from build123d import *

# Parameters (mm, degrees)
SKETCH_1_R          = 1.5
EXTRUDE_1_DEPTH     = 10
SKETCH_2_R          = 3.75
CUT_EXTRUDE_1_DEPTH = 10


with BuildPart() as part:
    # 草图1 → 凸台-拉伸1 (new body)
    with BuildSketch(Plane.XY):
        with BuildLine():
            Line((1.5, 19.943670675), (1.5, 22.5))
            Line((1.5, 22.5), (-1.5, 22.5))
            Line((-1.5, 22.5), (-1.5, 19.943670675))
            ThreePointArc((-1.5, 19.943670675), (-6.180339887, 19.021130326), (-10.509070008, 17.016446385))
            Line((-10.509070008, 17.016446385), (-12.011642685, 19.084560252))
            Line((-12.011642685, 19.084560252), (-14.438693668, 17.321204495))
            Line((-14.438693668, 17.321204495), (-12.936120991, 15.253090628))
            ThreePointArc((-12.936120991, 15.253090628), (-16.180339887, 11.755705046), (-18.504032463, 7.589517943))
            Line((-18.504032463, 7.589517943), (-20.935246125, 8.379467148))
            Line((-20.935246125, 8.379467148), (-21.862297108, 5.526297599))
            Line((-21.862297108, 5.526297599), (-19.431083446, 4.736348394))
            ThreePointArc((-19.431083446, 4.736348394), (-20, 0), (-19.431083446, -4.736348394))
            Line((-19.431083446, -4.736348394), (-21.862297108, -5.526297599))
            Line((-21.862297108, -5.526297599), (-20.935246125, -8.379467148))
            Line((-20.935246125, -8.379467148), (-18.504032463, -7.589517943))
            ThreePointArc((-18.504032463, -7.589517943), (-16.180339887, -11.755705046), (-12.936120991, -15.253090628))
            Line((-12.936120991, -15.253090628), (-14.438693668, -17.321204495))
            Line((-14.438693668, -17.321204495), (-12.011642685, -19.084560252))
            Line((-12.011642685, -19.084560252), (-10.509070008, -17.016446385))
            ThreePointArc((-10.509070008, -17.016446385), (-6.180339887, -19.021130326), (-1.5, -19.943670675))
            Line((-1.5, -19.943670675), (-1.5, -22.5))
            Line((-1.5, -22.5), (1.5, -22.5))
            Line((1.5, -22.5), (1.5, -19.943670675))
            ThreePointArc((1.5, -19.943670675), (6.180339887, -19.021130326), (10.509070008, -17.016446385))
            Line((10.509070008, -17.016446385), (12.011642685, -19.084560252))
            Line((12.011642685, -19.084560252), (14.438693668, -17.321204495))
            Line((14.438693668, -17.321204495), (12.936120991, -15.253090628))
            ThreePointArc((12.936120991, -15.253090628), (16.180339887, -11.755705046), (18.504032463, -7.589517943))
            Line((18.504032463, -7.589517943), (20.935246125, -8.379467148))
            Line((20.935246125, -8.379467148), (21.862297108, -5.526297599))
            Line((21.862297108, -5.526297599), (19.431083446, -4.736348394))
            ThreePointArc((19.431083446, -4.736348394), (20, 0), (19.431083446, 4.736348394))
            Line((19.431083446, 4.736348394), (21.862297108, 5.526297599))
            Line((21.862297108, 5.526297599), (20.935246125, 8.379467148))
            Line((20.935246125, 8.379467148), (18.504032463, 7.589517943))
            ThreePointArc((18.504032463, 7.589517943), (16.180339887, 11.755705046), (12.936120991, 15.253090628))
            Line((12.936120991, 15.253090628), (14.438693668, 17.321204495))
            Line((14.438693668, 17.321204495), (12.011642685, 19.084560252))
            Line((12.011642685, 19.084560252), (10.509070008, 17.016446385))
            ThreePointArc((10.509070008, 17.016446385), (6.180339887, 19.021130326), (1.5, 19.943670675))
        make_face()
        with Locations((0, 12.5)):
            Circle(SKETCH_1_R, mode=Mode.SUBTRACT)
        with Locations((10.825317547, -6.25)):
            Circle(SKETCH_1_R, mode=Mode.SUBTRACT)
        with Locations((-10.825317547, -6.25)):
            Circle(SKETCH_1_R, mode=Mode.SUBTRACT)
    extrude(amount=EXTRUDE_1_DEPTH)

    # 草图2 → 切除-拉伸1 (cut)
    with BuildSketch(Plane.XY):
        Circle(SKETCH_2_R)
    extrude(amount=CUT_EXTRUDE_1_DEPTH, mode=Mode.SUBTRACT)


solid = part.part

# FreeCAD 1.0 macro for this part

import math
import FreeCAD as App
import Part
import Sketcher

V = App.Vector
Q = App.Units.Quantity

doc = App.newDocument("Part")
body = doc.addObject("PartDesign::Body", "Body")

sketch1 = body.newObject("Sketcher::SketchObject", "Sketch")
sketch1.AttachmentSupport = (doc.getObject("XY_Plane"), [""])
sketch1.MapMode = "FlatFace"
sketch1.addGeometry([
    Part.LineSegment(V(1.5, 19.943671, 0), V(1.5, 22.5, 0)),
    Part.LineSegment(V(1.5, 22.5, 0), V(-1.5, 22.5, 0)),
    Part.LineSegment(V(-1.5, 22.5, 0), V(-1.5, 19.943671, 0)),
    Part.ArcOfCircle(Part.Circle(V(0, 0, 0), V(0, 0, 1), 20), math.radians(94.301222), math.radians(121.698778)),
    Part.LineSegment(V(-10.50907, 17.016446, 0), V(-12.011643, 19.08456, 0)),
    Part.LineSegment(V(-12.011643, 19.08456, 0), V(-14.438694, 17.321204, 0)),
    Part.LineSegment(V(-14.438694, 17.321204, 0), V(-12.936121, 15.253091, 0)),
    Part.ArcOfCircle(Part.Circle(V(0, 0, 0), V(0, 0, 1), 20), math.radians(130.301222), math.radians(157.698778)),
    Part.LineSegment(V(-18.504032, 7.589518, 0), V(-20.935246, 8.379467, 0)),
    Part.LineSegment(V(-20.935246, 8.379467, 0), V(-21.862297, 5.526298, 0)),
    Part.LineSegment(V(-21.862297, 5.526298, 0), V(-19.431083, 4.736348, 0)),
    Part.ArcOfCircle(Part.Circle(V(0, 0, 0), V(0, 0, 1), 20), math.radians(166.301222), math.radians(193.698778)),
    Part.LineSegment(V(-19.431083, -4.736348, 0), V(-21.862297, -5.526298, 0)),
    Part.LineSegment(V(-21.862297, -5.526298, 0), V(-20.935246, -8.379467, 0)),
    Part.LineSegment(V(-20.935246, -8.379467, 0), V(-18.504032, -7.589518, 0)),
    Part.ArcOfCircle(Part.Circle(V(0, 0, 0), V(0, 0, 1), 20), math.radians(-157.698778), math.radians(-130.301222)),
    Part.LineSegment(V(-12.936121, -15.253091, 0), V(-14.438694, -17.321204, 0)),
    Part.LineSegment(V(-14.438694, -17.321204, 0), V(-12.011643, -19.08456, 0)),
    Part.LineSegment(V(-12.011643, -19.08456, 0), V(-10.50907, -17.016446, 0)),
    Part.ArcOfCircle(Part.Circle(V(0, 0, 0), V(0, 0, 1), 20), math.radians(-121.698778), math.radians(-94.301222)),
    Part.LineSegment(V(-1.5, -19.943671, 0), V(-1.5, -22.5, 0)),
    Part.LineSegment(V(-1.5, -22.5, 0), V(1.5, -22.5, 0)),
    Part.LineSegment(V(1.5, -22.5, 0), V(1.5, -19.943671, 0)),
    Part.ArcOfCircle(Part.Circle(V(0, 0, 0), V(0, 0, 1), 20), math.radians(-85.698778), math.radians(-58.301222)),
    Part.LineSegment(V(10.50907, -17.016446, 0), V(12.011643, -19.08456, 0)),
    Part.LineSegment(V(12.011643, -19.08456, 0), V(14.438694, -17.321204, 0)),
    Part.LineSegment(V(14.438694, -17.321204, 0), V(12.936121, -15.253091, 0)),
    Part.ArcOfCircle(Part.Circle(V(0, 0, 0), V(0, 0, 1), 20), math.radians(-49.698778), math.radians(-22.301222)),
    Part.LineSegment(V(18.504032, -7.589518, 0), V(20.935246, -8.379467, 0)),
    Part.LineSegment(V(20.935246, -8.379467, 0), V(21.862297, -5.526298, 0)),
    Part.LineSegment(V(21.862297, -5.526298, 0), V(19.431083, -4.736348, 0)),
    Part.ArcOfCircle(Part.Circle(V(0, 0, 0), V(0, 0, 1), 20), math.radians(-13.698778), math.radians(13.698778)),
    Part.LineSegment(V(19.431083, 4.736348, 0), V(21.862297, 5.526298, 0)),
    Part.LineSegment(V(21.862297, 5.526298, 0), V(20.935246, 8.379467, 0)),
    Part.LineSegment(V(20.935246, 8.379467, 0), V(18.504032, 7.589518, 0)),
    Part.ArcOfCircle(Part.Circle(V(0, 0, 0), V(0, 0, 1), 20), math.radians(22.301222), math.radians(49.698778)),
    Part.LineSegment(V(12.936121, 15.253091, 0), V(14.438694, 17.321204, 0)),
    Part.LineSegment(V(14.438694, 17.321204, 0), V(12.011643, 19.08456, 0)),
    Part.LineSegment(V(12.011643, 19.08456, 0), V(10.50907, 17.016446, 0)),
    Part.ArcOfCircle(Part.Circle(V(0, 0, 0), V(0, 0, 1), 20), math.radians(58.301222), math.radians(85.698778)),
    Part.Circle(V(-10.825318, -6.25, 0), V(0, 0, 1), 1.5),
    Part.Circle(V(10.825318, -6.25, 0), V(0, 0, 1), 1.5),
    Part.Circle(V(0, 12.5, 0), V(0, 0, 1), 1.5),
], False)
sketch1.addConstraint([
    Sketcher.Constraint("Coincident", 0, 2, 1, 1),
    Sketcher.Constraint("Coincident", 1, 2, 2, 1),
    Sketcher.Constraint("Coincident", 2, 2, 3, 1),
    Sketcher.Constraint("Coincident", 3, 2, 4, 1),
    Sketcher.Constraint("Coincident", 4, 2, 5, 1),
    Sketcher.Constraint("Coincident", 5, 2, 6, 1),
    Sketcher.Constraint("Coincident", 6, 2, 7, 1),
    Sketcher.Constraint("Coincident", 7, 2, 8, 1),
    Sketcher.Constraint("Coincident", 8, 2, 9, 1),
    Sketcher.Constraint("Coincident", 9, 2, 10, 1),
    Sketcher.Constraint("Coincident", 10, 2, 11, 1),
    Sketcher.Constraint("Coincident", 11, 2, 12, 1),
    Sketcher.Constraint("Coincident", 12, 2, 13, 1),
    Sketcher.Constraint("Coincident", 13, 2, 14, 1),
    Sketcher.Constraint("Coincident", 14, 2, 15, 1),
    Sketcher.Constraint("Coincident", 15, 2, 16, 1),
    Sketcher.Constraint("Coincident", 16, 2, 17, 1),
    Sketcher.Constraint("Coincident", 17, 2, 18, 1),
    Sketcher.Constraint("Coincident", 18, 2, 19, 1),
    Sketcher.Constraint("Coincident", 19, 2, 20, 1),
    Sketcher.Constraint("Coincident", 20, 2, 21, 1),
    Sketcher.Constraint("Coincident", 21, 2, 22, 1),
    Sketcher.Constraint("Coincident", 22, 2, 23, 1),
    Sketcher.Constraint("Coincident", 23, 2, 24, 1),
    Sketcher.Constraint("Coincident", 24, 2, 25, 1),
    Sketcher.Constraint("Coincident", 25, 2, 26, 1),
    Sketcher.Constraint("Coincident", 26, 2, 27, 1),
    Sketcher.Constraint("Coincident", 27, 2, 28, 1),
    Sketcher.Constraint("Coincident", 28, 2, 29, 1),
    Sketcher.Constraint("Coincident", 29, 2, 30, 1),
    Sketcher.Constraint("Coincident", 30, 2, 31, 1),
    Sketcher.Constraint("Coincident", 31, 2, 32, 1),
    Sketcher.Constraint("Coincident", 32, 2, 33, 1),
    Sketcher.Constraint("Coincident", 33, 2, 34, 1),
    Sketcher.Constraint("Coincident", 34, 2, 35, 1),
    Sketcher.Constraint("Coincident", 35, 2, 36, 1),
    Sketcher.Constraint("Coincident", 36, 2, 37, 1),
    Sketcher.Constraint("Coincident", 37, 2, 38, 1),
    Sketcher.Constraint("Coincident", 38, 2, 39, 1),
    Sketcher.Constraint("Coincident", 39, 2, 0, 1),
    Sketcher.Constraint("Vertical", 0),
    Sketcher.Constraint("Horizontal", 1),
    Sketcher.Constraint("Vertical", 2),
    Sketcher.Constraint("Vertical", 20),
    Sketcher.Constraint("Horizontal", 21),
    Sketcher.Constraint("Vertical", 22),
    Sketcher.Constraint("Coincident", 3, 3, -1, 1),
    Sketcher.Constraint("Coincident", 7, 3, -1, 1),
    Sketcher.Constraint("Coincident", 11, 3, -1, 1),
    Sketcher.Constraint("Coincident", 15, 3, -1, 1),
    Sketcher.Constraint("Coincident", 19, 3, -1, 1),
    Sketcher.Constraint("Coincident", 23, 3, -1, 1),
    Sketcher.Constraint("Coincident", 27, 3, -1, 1),
    Sketcher.Constraint("Coincident", 31, 3, -1, 1),
    Sketcher.Constraint("Coincident", 35, 3, -1, 1),
    Sketcher.Constraint("Coincident", 39, 3, -1, 1),
    Sketcher.Constraint("Equal", 3, 7),
    Sketcher.Constraint("Equal", 7, 11),
    Sketcher.Constraint("Equal", 11, 15),
    Sketcher.Constraint("Equal", 15, 19),
    Sketcher.Constraint("Equal", 19, 23),
    Sketcher.Constraint("Equal", 23, 27),
    Sketcher.Constraint("Equal", 27, 31),
    Sketcher.Constraint("Equal", 31, 35),
    Sketcher.Constraint("Equal", 35, 39),
    Sketcher.Constraint("Equal", 40, 41),
    Sketcher.Constraint("Equal", 41, 42),
    Sketcher.Constraint("Symmetric", 0, 2, 20, 2, -1, 1),
    Sketcher.Constraint("Symmetric", 4, 2, 24, 2, -1, 1),
    Sketcher.Constraint("Symmetric", 5, 2, 25, 2, -1, 1),
    Sketcher.Constraint("Symmetric", 8, 2, 28, 2, -1, 1),
    Sketcher.Constraint("Symmetric", 9, 2, 29, 2, -1, 1),
    Sketcher.Constraint("Symmetric", 12, 2, 32, 2, -1, 1),
    Sketcher.Constraint("Symmetric", 13, 2, 33, 2, -1, 1),
    Sketcher.Constraint("Symmetric", 16, 2, 36, 2, -1, 1),
    Sketcher.Constraint("Symmetric", 17, 2, 37, 2, -1, 1),
    Sketcher.Constraint("Symmetric", 40, 3, 41, 3, -2),
    Sketcher.Constraint("Symmetric", 17, 2, 24, 2, -2),
    Sketcher.Constraint("Symmetric", 16, 2, 25, 2, -2),
    Sketcher.Constraint("Symmetric", 13, 2, 28, 2, -2),
    Sketcher.Constraint("Symmetric", 12, 2, 29, 2, -2),
    Sketcher.Constraint("PointOnObject", 42, 3, -2),
    Sketcher.Constraint("Perpendicular", 4, 5),
    Sketcher.Constraint("Perpendicular", 5, 6),
    Sketcher.Constraint("Perpendicular", 8, 9),
    Sketcher.Constraint("Perpendicular", 9, 10),
    Sketcher.Constraint("Perpendicular", 12, 13),
    Sketcher.Constraint("Perpendicular", 13, 14),
    Sketcher.Constraint("Perpendicular", 16, 17),
    Sketcher.Constraint("Perpendicular", 17, 18),
    Sketcher.Constraint("Parallel", 6, 24),
    Sketcher.Constraint("Perpendicular", 25, 26),
    Sketcher.Constraint("Parallel", 10, 28),
    Sketcher.Constraint("Perpendicular", 29, 30),
    Sketcher.Constraint("Parallel", 14, 32),
    Sketcher.Constraint("Perpendicular", 33, 34),
    Sketcher.Constraint("Parallel", 18, 36),
    Sketcher.Constraint("Perpendicular", 37, 38),
    Sketcher.Constraint("Horizontal", 19, 2, 22, 2),
    Sketcher.Constraint("Horizontal", 2, 2, 39, 2),
    Sketcher.Constraint("Equal", 4, 6),
    Sketcher.Constraint("Equal", 6, 8),
    Sketcher.Constraint("Equal", 5, 9),
    Sketcher.Constraint("Equal", 8, 10),
    Sketcher.Constraint("Diameter", 40, Q("3 mm")),
    Sketcher.Constraint("Radius", 3, Q("20 mm")),
    Sketcher.Constraint("DistanceX", 1, 2, 1, 1, Q("3 mm")),
    Sketcher.Constraint("Angle", 4, Q("126 deg")),
    Sketcher.Constraint("Angle", 8, Q("162 deg")),
    Sketcher.Constraint("Distance", 5, Q("3 mm")),
    Sketcher.Constraint("DistanceY", 42, 3, 0, 2, Q("10 mm")),
    Sketcher.Constraint("DistanceY", -1, 1, 42, 3, Q("12.5 mm")),
    Sketcher.Constraint("DistanceY", 40, 3, -1, 1, Q("6.25 mm")),
    Sketcher.Constraint("Distance", 4, Q("2.556329 mm")),
    Sketcher.Constraint("DistanceX", 9, 2, 40, 3, Q("11.03698 mm")),
])
pad1 = body.newObject("PartDesign::Pad", "Pad")
pad1.Profile = sketch1
pad1.Length = 10

sketch2 = body.newObject("Sketcher::SketchObject", "Sketch001")
sketch2.AttachmentSupport = (doc.getObject("XY_Plane"), [""])
sketch2.MapMode = "FlatFace"
sketch2.addGeometry(Part.Circle(V(0, 0, 0), V(0, 0, 1), 3.75), False)
sketch2.addConstraint([
    Sketcher.Constraint("Coincident", 0, 3, -1, 1),
    Sketcher.Constraint("Diameter", 0, Q("7.5 mm")),
])
pocket1 = body.newObject("PartDesign::Pocket", "Pocket")
pocket1.Profile = sketch2
pocket1.Length = 10
pocket1.Reversed = True

doc.recompute()
